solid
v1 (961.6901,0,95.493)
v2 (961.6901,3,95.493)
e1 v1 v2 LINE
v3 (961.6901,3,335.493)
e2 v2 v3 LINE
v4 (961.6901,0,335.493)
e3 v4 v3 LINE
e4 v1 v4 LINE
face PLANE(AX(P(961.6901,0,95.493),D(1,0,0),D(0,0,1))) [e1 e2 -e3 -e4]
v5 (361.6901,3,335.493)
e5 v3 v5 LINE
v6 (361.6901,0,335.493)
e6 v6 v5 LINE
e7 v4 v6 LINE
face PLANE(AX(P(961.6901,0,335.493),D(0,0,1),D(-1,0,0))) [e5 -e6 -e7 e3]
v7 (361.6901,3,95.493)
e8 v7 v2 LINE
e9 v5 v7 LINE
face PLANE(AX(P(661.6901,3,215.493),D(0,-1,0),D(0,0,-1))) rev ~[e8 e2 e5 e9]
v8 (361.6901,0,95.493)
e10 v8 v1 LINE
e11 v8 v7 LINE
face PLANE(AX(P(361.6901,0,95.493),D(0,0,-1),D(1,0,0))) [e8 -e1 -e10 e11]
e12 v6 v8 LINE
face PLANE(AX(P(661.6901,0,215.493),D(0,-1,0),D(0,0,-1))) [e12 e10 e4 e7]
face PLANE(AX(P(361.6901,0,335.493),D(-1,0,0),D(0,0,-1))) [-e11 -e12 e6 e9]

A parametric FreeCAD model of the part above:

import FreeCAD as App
import Part
import Sketcher

V = App.Vector

doc = App.newDocument("Part")
body = doc.addObject("PartDesign::Body", "Body")

sketch1 = doc.addObject("Sketcher::SketchObject", "Sketch")
body.addObject(sketch1)
sketch1.AttachmentSupport = (doc.XZ_Plane, [""])
sketch1.MapMode = "FlatFace"
sketch1.addGeometry([
    Part.LineSegment(V(961.6901, 335.493, 0), V(361.6901, 335.493, 0)),
    Part.LineSegment(V(361.6901, 335.493, 0), V(361.6901, 95.493, 0)),
    Part.LineSegment(V(361.6901, 95.493, 0), V(961.6901, 95.493, 0)),
    Part.LineSegment(V(961.6901, 95.493, 0), V(961.6901, 335.493, 0)),
], False)
sketch1.addConstraint([
    Sketcher.Constraint("Coincident", 0, 2, 1, 1),
    Sketcher.Constraint("Coincident", 1, 2, 2, 1),
    Sketcher.Constraint("Coincident", 2, 2, 3, 1),
    Sketcher.Constraint("Coincident", 3, 2, 0, 1),
    Sketcher.Constraint("Horizontal", 0),
    Sketcher.Constraint("Vertical", 1),
    Sketcher.Constraint("Horizontal", 2),
    Sketcher.Constraint("Vertical", 3),
    Sketcher.Constraint("DistanceX", 0, 2, 0, 1, 600.0),
    Sketcher.Constraint("DistanceY", 1, 2, 1, 1, 240.0),
    Sketcher.Constraint("DistanceX", -1, 1, 2, 2, 961.69),
    Sketcher.Constraint("DistanceY", -1, 1, 0, 2, 335.493),
])
pad1 = doc.addObject("PartDesign::Pad", "Pad")
body.addObject(pad1)
pad1.Profile = sketch1
pad1.Length = 3
pad1.Reversed = True

doc.recompute()
